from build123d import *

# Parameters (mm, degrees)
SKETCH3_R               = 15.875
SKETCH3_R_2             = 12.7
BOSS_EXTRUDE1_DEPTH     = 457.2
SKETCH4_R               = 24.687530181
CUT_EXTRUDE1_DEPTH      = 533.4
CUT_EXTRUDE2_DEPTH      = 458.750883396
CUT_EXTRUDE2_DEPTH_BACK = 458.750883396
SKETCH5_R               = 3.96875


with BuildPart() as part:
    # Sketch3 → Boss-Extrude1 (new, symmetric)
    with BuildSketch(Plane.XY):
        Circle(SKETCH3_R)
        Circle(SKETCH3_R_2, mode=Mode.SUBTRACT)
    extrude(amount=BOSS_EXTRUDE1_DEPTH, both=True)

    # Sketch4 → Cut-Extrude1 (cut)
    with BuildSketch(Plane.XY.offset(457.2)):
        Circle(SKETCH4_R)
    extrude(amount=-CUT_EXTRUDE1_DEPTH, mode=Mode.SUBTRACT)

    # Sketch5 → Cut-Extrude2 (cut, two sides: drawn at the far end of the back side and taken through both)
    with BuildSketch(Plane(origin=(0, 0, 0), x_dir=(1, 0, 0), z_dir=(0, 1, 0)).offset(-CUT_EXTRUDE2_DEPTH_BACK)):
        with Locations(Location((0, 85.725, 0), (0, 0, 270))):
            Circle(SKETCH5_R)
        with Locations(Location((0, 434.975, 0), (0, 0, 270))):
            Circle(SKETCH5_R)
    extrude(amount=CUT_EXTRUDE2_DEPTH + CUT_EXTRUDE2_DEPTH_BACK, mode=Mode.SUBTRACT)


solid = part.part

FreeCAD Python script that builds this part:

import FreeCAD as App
import Part
import Sketcher

V = App.Vector
Q = App.Units.Quantity

doc = App.newDocument("Part")
params = doc.addObject("Spreadsheet::Sheet", "Params")
for row, (alias, value) in enumerate([
    ("sketch1_diameter", "1 in"),
    ("sketch1_diameter2", "1.25 in"),
    ("pad1_length", "36 in"),
    ("pocket1_length", "21 in"),
    ("sketch3_diameter", "0.3125 in"),
], start=1):
    params.set(f"A{row}", alias)
    params.set(f"B{row}", "=" + value)
    params.setAlias(f"B{row}", alias)

body = doc.addObject("PartDesign::Body", "Body")

sketch1 = body.newObject("Sketcher::SketchObject", "Sketch")
sketch1.AttachmentSupport = (doc.getObject("XY_Plane"), [""])
sketch1.MapMode = "FlatFace"
sketch1.addGeometry([
    Part.Circle(V(0, 0, 0), V(0, 0, 1), 16),
    Part.Circle(V(0, 0, 0), V(0, 0, 1), 13),
], False)
sketch1.addConstraint([
    Sketcher.Constraint("Coincident", 0, 3, -1, 1),
    Sketcher.Constraint("Coincident", 1, 3, -1, 1),
    Sketcher.Constraint("Diameter", 1, Q("1 in")),
    Sketcher.Constraint("Diameter", 0, Q("1.25 in")),
])
sketch1.setExpression("Constraints[2]", "Params.sketch1_diameter")
sketch1.setExpression("Constraints[3]", "Params.sketch1_diameter2")
pad1 = body.newObject("PartDesign::Pad", "Pad")
pad1.Profile = sketch1
pad1.setExpression("Length", "Params.pad1_length")
pad1.Midplane = True

sketch2 = body.newObject("Sketcher::SketchObject", "Sketch001")
sketch2.AttachmentSupport = (doc.getObject("XY_Plane"), [""])
sketch2.MapMode = "FlatFace"
sketch2.AttachmentOffset = App.Placement(V(0, 0, 18 * 25.4), App.Rotation())
sketch2.addGeometry(Part.Circle(V(0, 0, 0), V(0, 0, 1), 25), False)
sketch2.addConstraint([
    Sketcher.Constraint("Coincident", 0, 3, -1, 1),
    Sketcher.Constraint("Diameter", 0, Q("1.9439 in")),
])
pocket1 = body.newObject("PartDesign::Pocket", "Pocket")
pocket1.Profile = sketch2
pocket1.setExpression("Length", "Params.pocket1_length")

sketch3 = body.newObject("Sketcher::SketchObject", "Sketch002")
sketch3.AttachmentSupport = (doc.getObject("XZ_Plane"), [""])
sketch3.MapMode = "FlatFace"
sketch3.addGeometry([
    Part.Circle(V(0, -85.7, 0), V(0, 0, 1), 4),
    Part.Circle(V(0, -435, 0), V(0, 0, 1), 4),
], False)
sketch3.addConstraint([
    Sketcher.Constraint("Equal", 0, 1),
    Sketcher.Constraint("PointOnObject", 0, 3, -2),
    Sketcher.Constraint("PointOnObject", 1, 3, -2),
    Sketcher.Constraint("Diameter", 0, Q("0.3125 in")),
    Sketcher.Constraint("DistanceY", 1, 3, 0, 3, Q("13.75 in")),
    Sketcher.Constraint("DistanceY", 0, 3, -1, 1, Q("3.375 in")),
])
sketch3.setExpression("Constraints[3]", "Params.sketch3_diameter")
pocket2 = body.newObject("PartDesign::Pocket", "Pocket001")
pocket2.Profile = sketch3
pocket2.Type = "ThroughAll"
pocket2.Midplane = True

doc.recompute()
